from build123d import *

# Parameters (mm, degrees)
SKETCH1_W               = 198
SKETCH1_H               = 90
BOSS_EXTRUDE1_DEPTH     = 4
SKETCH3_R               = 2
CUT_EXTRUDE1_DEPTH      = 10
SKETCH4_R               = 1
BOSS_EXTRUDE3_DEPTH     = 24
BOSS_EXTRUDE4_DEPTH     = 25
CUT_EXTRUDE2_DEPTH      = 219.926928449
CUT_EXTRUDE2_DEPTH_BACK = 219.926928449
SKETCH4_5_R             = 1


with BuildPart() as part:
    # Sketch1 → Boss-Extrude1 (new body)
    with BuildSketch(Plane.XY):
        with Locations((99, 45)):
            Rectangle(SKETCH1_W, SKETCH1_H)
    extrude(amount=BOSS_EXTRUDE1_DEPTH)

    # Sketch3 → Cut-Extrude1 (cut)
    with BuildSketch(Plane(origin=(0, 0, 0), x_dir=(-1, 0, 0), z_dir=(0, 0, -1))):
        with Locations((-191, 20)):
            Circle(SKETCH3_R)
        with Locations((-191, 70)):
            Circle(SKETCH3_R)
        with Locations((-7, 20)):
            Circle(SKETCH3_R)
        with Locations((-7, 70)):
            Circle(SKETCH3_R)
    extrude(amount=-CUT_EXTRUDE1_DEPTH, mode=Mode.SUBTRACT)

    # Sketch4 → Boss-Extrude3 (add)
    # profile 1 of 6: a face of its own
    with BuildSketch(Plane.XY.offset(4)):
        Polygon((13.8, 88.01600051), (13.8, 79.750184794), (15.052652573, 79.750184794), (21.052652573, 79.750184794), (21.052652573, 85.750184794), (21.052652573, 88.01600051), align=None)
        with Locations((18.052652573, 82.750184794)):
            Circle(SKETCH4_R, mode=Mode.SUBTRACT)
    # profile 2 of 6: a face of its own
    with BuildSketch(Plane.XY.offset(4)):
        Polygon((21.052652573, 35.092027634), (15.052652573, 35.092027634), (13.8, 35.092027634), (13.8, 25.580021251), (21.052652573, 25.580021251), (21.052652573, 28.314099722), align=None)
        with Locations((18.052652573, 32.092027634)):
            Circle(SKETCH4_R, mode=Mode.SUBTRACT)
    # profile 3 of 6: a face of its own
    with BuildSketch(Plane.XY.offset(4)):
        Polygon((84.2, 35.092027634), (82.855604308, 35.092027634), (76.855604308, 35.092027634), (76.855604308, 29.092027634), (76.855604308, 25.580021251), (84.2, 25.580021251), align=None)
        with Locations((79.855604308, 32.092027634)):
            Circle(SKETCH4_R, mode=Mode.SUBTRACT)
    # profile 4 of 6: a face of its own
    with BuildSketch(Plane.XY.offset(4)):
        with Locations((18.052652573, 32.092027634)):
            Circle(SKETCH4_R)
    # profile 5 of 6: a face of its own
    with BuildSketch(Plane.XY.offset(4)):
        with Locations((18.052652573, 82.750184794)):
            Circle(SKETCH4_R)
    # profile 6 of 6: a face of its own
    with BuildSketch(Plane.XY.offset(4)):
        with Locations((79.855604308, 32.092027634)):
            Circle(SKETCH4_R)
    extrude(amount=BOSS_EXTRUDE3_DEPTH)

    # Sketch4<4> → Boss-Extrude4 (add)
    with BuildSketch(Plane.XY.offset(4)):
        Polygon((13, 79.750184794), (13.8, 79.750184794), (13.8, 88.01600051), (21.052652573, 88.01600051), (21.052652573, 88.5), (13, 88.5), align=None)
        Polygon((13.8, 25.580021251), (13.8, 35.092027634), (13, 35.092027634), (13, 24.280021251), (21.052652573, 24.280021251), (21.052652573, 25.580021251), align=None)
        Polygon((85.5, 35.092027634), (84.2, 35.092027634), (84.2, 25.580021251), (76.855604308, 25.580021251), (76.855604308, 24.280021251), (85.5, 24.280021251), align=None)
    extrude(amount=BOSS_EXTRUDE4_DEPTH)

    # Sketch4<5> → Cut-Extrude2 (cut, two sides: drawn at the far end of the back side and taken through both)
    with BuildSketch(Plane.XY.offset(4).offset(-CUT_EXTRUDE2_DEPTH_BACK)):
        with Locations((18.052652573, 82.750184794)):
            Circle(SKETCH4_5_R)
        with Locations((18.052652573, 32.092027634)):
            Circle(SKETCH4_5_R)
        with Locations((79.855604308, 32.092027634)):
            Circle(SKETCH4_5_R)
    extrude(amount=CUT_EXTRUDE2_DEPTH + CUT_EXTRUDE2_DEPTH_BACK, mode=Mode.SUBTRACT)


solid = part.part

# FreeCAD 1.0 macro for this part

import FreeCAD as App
import Part
import Sketcher
from FreeCAD import Vector
Q = App.Units.Quantity


def add_polygon(sketch, points):
    """Adds a closed chain of lines whose ends are joined by coincident constraints."""
    first, n = sketch.GeometryCount, len(points)
    for a, b in zip(points, points[1:] + points[:1]):
        sketch.addGeometry(Part.LineSegment(App.Vector(*a, 0), App.Vector(*b, 0)), False)
    for i in range(n):
        sketch.addConstraint(Sketcher.Constraint("Coincident", first + i, 2, first + (i + 1) % n, 1))

doc = App.newDocument("Part")
body = doc.addObject("PartDesign::Body", "Body")

sketch1 = doc.addObject("Sketcher::SketchObject", "Sketch")
body.addObject(sketch1)
sketch1.AttachmentSupport = (doc.XY_Plane, [""])
sketch1.MapMode = "FlatFace"
add_polygon(sketch1, [(0, 90), (0, 0), (198, 0), (198, 90)])
sketch1.addConstraint([
    Sketcher.Constraint("Vertical", 0),
    Sketcher.Constraint("Horizontal", 1),
    Sketcher.Constraint("Vertical", 2),
    Sketcher.Constraint("Horizontal", 3),
    Sketcher.Constraint("Coincident", 0, 2, -1, 1),
    Sketcher.Constraint("DistanceX", 1, 1, 1, 2, Q("198 mm")),
    Sketcher.Constraint("DistanceY", 0, 2, 0, 1, Q("90 mm")),
])
pad1 = doc.addObject("PartDesign::Pad", "Pad")
body.addObject(pad1)
pad1.Profile = sketch1
pad1.Length = 4

sketch2 = doc.addObject("Sketcher::SketchObject", "Sketch001")
body.addObject(sketch2)
sketch2.AttachmentSupport = (doc.XY_Plane, [""])
sketch2.MapMode = "FlatFace"
sketch2.addGeometry([
    Part.Circle(Vector(191, 20, 0), Vector(0, 0, 1), 2),
    Part.Circle(Vector(191, 70, 0), Vector(0, 0, 1), 2),
    Part.Circle(Vector(7, 20, 0), Vector(0, 0, 1), 2),
    Part.Circle(Vector(7, 70, 0), Vector(0, 0, 1), 2),
], False)
sketch2.addConstraint([
    Sketcher.Constraint("Equal", 0, 1),
    Sketcher.Constraint("Equal", 1, 2),
    Sketcher.Constraint("Equal", 2, 3),
    Sketcher.Constraint("Horizontal", 0, 3, 2, 3),
    Sketcher.Constraint("Horizontal", 1, 3, 3, 3),
    Sketcher.Constraint("Vertical", 0, 3, 1, 3),
    Sketcher.Constraint("Vertical", 2, 3, 3, 3),
    Sketcher.Constraint("Diameter", 0, Q("4 mm")),
    Sketcher.Constraint("DistanceX", -1, 1, 0, 3, Q("191 mm")),
    Sketcher.Constraint("DistanceY", -1, 1, 0, 3, Q("20 mm")),
    Sketcher.Constraint("DistanceY", -1, 1, 1, 3, Q("70 mm")),
    Sketcher.Constraint("DistanceX", -1, 1, 2, 3, Q("7 mm")),
])
pocket1 = doc.addObject("PartDesign::Pocket", "Pocket")
body.addObject(pocket1)
pocket1.Profile = sketch2
pocket1.Length = 10
pocket1.Reversed = True

sketch3 = doc.addObject("Sketcher::SketchObject", "Sketch002")
body.addObject(sketch3)
sketch3.AttachmentSupport = (doc.XY_Plane, [""])
sketch3.MapMode = "FlatFace"
sketch3.AttachmentOffset = App.Placement(Vector(0, 0, 4), App.Rotation())
add_polygon(sketch3, [(14, 88), (14, 80), (21, 80), (21, 88)])
add_polygon(sketch3, [(21, 35), (14, 35), (14, 26), (21, 26)])
add_polygon(sketch3, [(84, 35), (77, 35), (77, 26), (84, 26)])
sketch3.addConstraint([
    Sketcher.Constraint("Vertical", 0),
    Sketcher.Constraint("Horizontal", 1),
    Sketcher.Constraint("Vertical", 2),
    Sketcher.Constraint("Horizontal", 3),
    Sketcher.Constraint("Horizontal", 4),
    Sketcher.Constraint("Vertical", 5),
    Sketcher.Constraint("Horizontal", 6),
    Sketcher.Constraint("Vertical", 7),
    Sketcher.Constraint("Horizontal", 8),
    Sketcher.Constraint("Vertical", 9),
    Sketcher.Constraint("Horizontal", 10),
    Sketcher.Constraint("Vertical", 11),
    Sketcher.Constraint("Horizontal", 7, 2, 8, 2),
    Sketcher.Constraint("Horizontal", 6, 2, 9, 2),
    Sketcher.Constraint("Vertical", 3, 2, 4, 2),
    Sketcher.Constraint("Vertical", 2, 2, 6, 2),
    Sketcher.Constraint("DistanceX", -1, 1, 0, 2, Q("13.8 mm")),
    Sketcher.Constraint("DistanceX", -1, 1, 10, 2, Q("84.2 mm")),
    Sketcher.Constraint("DistanceY", -1, 1, 2, 2, Q("88.016001 mm")),
    Sketcher.Constraint("DistanceX", 1, 1, 1, 2, Q("7.252653 mm")),
    Sketcher.Constraint("DistanceX", 8, 2, 8, 1, Q("7.344396 mm")),
    Sketcher.Constraint("DistanceY", 0, 2, 0, 1, Q("8.265816 mm")),
    Sketcher.Constraint("DistanceY", 5, 2, 5, 1, Q("9.512006 mm")),
    Sketcher.Constraint("DistanceY", -1, 1, 5, 2, Q("25.580021 mm")),
])
pad2 = doc.addObject("PartDesign::Pad", "Pad001")
body.addObject(pad2)
pad2.Profile = sketch3
pad2.Length = 24

sketch4 = doc.addObject("Sketcher::SketchObject", "Sketch003")
body.addObject(sketch4)
sketch4.AttachmentSupport = (doc.XY_Plane, [""])
sketch4.MapMode = "FlatFace"
sketch4.AttachmentOffset = App.Placement(Vector(0, 0, 4), App.Rotation())
add_polygon(sketch4, [(13, 79.75), (13.8, 79.75), (13.8, 88.02), (21.05, 88.02), (21.05, 88.5), (13, 88.5)])
add_polygon(sketch4, [(13.8, 25.58), (13.8, 35.09), (13, 35.09), (13, 24.28), (21.05, 24.28), (21.05, 25.58)])
add_polygon(sketch4, [(85.5, 35.09), (84.2, 35.09), (84.2, 25.58), (76.86, 25.58), (76.86, 24.28), (85.5, 24.28)])
sketch4.addConstraint([
    Sketcher.Constraint("Horizontal", 0),
    Sketcher.Constraint("Vertical", 1),
    Sketcher.Constraint("Horizontal", 2),
    Sketcher.Constraint("Vertical", 3),
    Sketcher.Constraint("Horizontal", 4),
    Sketcher.Constraint("Vertical", 5),
    Sketcher.Constraint("Vertical", 6),
    Sketcher.Constraint("Horizontal", 7),
    Sketcher.Constraint("Vertical", 8),
    Sketcher.Constraint("Horizontal", 9),
    Sketcher.Constraint("Vertical", 10),
    Sketcher.Constraint("Horizontal", 11),
    Sketcher.Constraint("Horizontal", 12),
    Sketcher.Constraint("Vertical", 13),
    Sketcher.Constraint("Horizontal", 14),
    Sketcher.Constraint("Vertical", 15),
    Sketcher.Constraint("Horizontal", 16),
    Sketcher.Constraint("Vertical", 17),
    Sketcher.Constraint("Horizontal", 7, 2, 12, 2),
    Sketcher.Constraint("Horizontal", 11, 2, 13, 2),
    Sketcher.Constraint("Horizontal", 9, 2, 15, 2),
    Sketcher.Constraint("Vertical", 1, 2, 6, 2),
    Sketcher.Constraint("Vertical", 5, 2, 7, 2),
    Sketcher.Constraint("Vertical", 3, 2, 9, 2),
    Sketcher.Constraint("Equal", 12, 10),
    Sketcher.Constraint("DistanceX", 0, 1, 0, 2, Q("0.8 mm")),
    Sketcher.Constraint("DistanceX", 12, 2, 12, 1, Q("1.3 mm")),
    Sketcher.Constraint("DistanceX", -1, 1, 4, 2, Q("13 mm")),
    Sketcher.Constraint("DistanceY", -1, 1, 3, 2, Q("88.5 mm")),
    Sketcher.Constraint("DistanceX", -1, 1, 12, 2, Q("84.2 mm")),
    Sketcher.Constraint("DistanceY", 3, 1, 3, 2, Q("0.483999 mm")),
    Sketcher.Constraint("DistanceX", 2, 1, 2, 2, Q("7.252653 mm")),
    Sketcher.Constraint("DistanceX", 14, 2, 14, 1, Q("7.344396 mm")),
    Sketcher.Constraint("DistanceY", 1, 1, 1, 2, Q("8.265816 mm")),
    Sketcher.Constraint("DistanceY", 6, 1, 6, 2, Q("9.512006 mm")),
    Sketcher.Constraint("DistanceY", -1, 1, 8, 2, Q("24.280021 mm")),
])
pad3 = doc.addObject("PartDesign::Pad", "Pad002")
body.addObject(pad3)
pad3.Profile = sketch4
pad3.Length = 25

sketch5 = doc.addObject("Sketcher::SketchObject", "Sketch004")
body.addObject(sketch5)
sketch5.AttachmentSupport = (doc.XY_Plane, [""])
sketch5.MapMode = "FlatFace"
sketch5.AttachmentOffset = App.Placement(Vector(0, 0, 4), App.Rotation())
sketch5.addGeometry([
    Part.Circle(Vector(18.1, 82.8, 0), Vector(0, 0, 1), 1),
    Part.Circle(Vector(18.1, 32.1, 0), Vector(0, 0, 1), 1),
    Part.Circle(Vector(79.9, 32.1, 0), Vector(0, 0, 1), 1),
], False)
sketch5.addConstraint([
    Sketcher.Constraint("Equal", 0, 1),
    Sketcher.Constraint("Equal", 1, 2),
    Sketcher.Constraint("Horizontal", 1, 3, 2, 3),
    Sketcher.Constraint("Vertical", 0, 3, 1, 3),
    Sketcher.Constraint("Diameter", 0, Q("2 mm")),
    Sketcher.Constraint("DistanceX", 1, 3, 2, 3, Q("61.802952 mm")),
    Sketcher.Constraint("DistanceX", -1, 1, 0, 3, Q("18.052653 mm")),
    Sketcher.Constraint("DistanceY", -1, 1, 0, 3, Q("82.750185 mm")),
    Sketcher.Constraint("DistanceY", -1, 1, 1, 3, Q("32.092028 mm")),
])
pocket2 = doc.addObject("PartDesign::Pocket", "Pocket001")
body.addObject(pocket2)
pocket2.Profile = sketch5
pocket2.Type = "ThroughAll"
pocket2.Midplane = True

doc.recompute()
